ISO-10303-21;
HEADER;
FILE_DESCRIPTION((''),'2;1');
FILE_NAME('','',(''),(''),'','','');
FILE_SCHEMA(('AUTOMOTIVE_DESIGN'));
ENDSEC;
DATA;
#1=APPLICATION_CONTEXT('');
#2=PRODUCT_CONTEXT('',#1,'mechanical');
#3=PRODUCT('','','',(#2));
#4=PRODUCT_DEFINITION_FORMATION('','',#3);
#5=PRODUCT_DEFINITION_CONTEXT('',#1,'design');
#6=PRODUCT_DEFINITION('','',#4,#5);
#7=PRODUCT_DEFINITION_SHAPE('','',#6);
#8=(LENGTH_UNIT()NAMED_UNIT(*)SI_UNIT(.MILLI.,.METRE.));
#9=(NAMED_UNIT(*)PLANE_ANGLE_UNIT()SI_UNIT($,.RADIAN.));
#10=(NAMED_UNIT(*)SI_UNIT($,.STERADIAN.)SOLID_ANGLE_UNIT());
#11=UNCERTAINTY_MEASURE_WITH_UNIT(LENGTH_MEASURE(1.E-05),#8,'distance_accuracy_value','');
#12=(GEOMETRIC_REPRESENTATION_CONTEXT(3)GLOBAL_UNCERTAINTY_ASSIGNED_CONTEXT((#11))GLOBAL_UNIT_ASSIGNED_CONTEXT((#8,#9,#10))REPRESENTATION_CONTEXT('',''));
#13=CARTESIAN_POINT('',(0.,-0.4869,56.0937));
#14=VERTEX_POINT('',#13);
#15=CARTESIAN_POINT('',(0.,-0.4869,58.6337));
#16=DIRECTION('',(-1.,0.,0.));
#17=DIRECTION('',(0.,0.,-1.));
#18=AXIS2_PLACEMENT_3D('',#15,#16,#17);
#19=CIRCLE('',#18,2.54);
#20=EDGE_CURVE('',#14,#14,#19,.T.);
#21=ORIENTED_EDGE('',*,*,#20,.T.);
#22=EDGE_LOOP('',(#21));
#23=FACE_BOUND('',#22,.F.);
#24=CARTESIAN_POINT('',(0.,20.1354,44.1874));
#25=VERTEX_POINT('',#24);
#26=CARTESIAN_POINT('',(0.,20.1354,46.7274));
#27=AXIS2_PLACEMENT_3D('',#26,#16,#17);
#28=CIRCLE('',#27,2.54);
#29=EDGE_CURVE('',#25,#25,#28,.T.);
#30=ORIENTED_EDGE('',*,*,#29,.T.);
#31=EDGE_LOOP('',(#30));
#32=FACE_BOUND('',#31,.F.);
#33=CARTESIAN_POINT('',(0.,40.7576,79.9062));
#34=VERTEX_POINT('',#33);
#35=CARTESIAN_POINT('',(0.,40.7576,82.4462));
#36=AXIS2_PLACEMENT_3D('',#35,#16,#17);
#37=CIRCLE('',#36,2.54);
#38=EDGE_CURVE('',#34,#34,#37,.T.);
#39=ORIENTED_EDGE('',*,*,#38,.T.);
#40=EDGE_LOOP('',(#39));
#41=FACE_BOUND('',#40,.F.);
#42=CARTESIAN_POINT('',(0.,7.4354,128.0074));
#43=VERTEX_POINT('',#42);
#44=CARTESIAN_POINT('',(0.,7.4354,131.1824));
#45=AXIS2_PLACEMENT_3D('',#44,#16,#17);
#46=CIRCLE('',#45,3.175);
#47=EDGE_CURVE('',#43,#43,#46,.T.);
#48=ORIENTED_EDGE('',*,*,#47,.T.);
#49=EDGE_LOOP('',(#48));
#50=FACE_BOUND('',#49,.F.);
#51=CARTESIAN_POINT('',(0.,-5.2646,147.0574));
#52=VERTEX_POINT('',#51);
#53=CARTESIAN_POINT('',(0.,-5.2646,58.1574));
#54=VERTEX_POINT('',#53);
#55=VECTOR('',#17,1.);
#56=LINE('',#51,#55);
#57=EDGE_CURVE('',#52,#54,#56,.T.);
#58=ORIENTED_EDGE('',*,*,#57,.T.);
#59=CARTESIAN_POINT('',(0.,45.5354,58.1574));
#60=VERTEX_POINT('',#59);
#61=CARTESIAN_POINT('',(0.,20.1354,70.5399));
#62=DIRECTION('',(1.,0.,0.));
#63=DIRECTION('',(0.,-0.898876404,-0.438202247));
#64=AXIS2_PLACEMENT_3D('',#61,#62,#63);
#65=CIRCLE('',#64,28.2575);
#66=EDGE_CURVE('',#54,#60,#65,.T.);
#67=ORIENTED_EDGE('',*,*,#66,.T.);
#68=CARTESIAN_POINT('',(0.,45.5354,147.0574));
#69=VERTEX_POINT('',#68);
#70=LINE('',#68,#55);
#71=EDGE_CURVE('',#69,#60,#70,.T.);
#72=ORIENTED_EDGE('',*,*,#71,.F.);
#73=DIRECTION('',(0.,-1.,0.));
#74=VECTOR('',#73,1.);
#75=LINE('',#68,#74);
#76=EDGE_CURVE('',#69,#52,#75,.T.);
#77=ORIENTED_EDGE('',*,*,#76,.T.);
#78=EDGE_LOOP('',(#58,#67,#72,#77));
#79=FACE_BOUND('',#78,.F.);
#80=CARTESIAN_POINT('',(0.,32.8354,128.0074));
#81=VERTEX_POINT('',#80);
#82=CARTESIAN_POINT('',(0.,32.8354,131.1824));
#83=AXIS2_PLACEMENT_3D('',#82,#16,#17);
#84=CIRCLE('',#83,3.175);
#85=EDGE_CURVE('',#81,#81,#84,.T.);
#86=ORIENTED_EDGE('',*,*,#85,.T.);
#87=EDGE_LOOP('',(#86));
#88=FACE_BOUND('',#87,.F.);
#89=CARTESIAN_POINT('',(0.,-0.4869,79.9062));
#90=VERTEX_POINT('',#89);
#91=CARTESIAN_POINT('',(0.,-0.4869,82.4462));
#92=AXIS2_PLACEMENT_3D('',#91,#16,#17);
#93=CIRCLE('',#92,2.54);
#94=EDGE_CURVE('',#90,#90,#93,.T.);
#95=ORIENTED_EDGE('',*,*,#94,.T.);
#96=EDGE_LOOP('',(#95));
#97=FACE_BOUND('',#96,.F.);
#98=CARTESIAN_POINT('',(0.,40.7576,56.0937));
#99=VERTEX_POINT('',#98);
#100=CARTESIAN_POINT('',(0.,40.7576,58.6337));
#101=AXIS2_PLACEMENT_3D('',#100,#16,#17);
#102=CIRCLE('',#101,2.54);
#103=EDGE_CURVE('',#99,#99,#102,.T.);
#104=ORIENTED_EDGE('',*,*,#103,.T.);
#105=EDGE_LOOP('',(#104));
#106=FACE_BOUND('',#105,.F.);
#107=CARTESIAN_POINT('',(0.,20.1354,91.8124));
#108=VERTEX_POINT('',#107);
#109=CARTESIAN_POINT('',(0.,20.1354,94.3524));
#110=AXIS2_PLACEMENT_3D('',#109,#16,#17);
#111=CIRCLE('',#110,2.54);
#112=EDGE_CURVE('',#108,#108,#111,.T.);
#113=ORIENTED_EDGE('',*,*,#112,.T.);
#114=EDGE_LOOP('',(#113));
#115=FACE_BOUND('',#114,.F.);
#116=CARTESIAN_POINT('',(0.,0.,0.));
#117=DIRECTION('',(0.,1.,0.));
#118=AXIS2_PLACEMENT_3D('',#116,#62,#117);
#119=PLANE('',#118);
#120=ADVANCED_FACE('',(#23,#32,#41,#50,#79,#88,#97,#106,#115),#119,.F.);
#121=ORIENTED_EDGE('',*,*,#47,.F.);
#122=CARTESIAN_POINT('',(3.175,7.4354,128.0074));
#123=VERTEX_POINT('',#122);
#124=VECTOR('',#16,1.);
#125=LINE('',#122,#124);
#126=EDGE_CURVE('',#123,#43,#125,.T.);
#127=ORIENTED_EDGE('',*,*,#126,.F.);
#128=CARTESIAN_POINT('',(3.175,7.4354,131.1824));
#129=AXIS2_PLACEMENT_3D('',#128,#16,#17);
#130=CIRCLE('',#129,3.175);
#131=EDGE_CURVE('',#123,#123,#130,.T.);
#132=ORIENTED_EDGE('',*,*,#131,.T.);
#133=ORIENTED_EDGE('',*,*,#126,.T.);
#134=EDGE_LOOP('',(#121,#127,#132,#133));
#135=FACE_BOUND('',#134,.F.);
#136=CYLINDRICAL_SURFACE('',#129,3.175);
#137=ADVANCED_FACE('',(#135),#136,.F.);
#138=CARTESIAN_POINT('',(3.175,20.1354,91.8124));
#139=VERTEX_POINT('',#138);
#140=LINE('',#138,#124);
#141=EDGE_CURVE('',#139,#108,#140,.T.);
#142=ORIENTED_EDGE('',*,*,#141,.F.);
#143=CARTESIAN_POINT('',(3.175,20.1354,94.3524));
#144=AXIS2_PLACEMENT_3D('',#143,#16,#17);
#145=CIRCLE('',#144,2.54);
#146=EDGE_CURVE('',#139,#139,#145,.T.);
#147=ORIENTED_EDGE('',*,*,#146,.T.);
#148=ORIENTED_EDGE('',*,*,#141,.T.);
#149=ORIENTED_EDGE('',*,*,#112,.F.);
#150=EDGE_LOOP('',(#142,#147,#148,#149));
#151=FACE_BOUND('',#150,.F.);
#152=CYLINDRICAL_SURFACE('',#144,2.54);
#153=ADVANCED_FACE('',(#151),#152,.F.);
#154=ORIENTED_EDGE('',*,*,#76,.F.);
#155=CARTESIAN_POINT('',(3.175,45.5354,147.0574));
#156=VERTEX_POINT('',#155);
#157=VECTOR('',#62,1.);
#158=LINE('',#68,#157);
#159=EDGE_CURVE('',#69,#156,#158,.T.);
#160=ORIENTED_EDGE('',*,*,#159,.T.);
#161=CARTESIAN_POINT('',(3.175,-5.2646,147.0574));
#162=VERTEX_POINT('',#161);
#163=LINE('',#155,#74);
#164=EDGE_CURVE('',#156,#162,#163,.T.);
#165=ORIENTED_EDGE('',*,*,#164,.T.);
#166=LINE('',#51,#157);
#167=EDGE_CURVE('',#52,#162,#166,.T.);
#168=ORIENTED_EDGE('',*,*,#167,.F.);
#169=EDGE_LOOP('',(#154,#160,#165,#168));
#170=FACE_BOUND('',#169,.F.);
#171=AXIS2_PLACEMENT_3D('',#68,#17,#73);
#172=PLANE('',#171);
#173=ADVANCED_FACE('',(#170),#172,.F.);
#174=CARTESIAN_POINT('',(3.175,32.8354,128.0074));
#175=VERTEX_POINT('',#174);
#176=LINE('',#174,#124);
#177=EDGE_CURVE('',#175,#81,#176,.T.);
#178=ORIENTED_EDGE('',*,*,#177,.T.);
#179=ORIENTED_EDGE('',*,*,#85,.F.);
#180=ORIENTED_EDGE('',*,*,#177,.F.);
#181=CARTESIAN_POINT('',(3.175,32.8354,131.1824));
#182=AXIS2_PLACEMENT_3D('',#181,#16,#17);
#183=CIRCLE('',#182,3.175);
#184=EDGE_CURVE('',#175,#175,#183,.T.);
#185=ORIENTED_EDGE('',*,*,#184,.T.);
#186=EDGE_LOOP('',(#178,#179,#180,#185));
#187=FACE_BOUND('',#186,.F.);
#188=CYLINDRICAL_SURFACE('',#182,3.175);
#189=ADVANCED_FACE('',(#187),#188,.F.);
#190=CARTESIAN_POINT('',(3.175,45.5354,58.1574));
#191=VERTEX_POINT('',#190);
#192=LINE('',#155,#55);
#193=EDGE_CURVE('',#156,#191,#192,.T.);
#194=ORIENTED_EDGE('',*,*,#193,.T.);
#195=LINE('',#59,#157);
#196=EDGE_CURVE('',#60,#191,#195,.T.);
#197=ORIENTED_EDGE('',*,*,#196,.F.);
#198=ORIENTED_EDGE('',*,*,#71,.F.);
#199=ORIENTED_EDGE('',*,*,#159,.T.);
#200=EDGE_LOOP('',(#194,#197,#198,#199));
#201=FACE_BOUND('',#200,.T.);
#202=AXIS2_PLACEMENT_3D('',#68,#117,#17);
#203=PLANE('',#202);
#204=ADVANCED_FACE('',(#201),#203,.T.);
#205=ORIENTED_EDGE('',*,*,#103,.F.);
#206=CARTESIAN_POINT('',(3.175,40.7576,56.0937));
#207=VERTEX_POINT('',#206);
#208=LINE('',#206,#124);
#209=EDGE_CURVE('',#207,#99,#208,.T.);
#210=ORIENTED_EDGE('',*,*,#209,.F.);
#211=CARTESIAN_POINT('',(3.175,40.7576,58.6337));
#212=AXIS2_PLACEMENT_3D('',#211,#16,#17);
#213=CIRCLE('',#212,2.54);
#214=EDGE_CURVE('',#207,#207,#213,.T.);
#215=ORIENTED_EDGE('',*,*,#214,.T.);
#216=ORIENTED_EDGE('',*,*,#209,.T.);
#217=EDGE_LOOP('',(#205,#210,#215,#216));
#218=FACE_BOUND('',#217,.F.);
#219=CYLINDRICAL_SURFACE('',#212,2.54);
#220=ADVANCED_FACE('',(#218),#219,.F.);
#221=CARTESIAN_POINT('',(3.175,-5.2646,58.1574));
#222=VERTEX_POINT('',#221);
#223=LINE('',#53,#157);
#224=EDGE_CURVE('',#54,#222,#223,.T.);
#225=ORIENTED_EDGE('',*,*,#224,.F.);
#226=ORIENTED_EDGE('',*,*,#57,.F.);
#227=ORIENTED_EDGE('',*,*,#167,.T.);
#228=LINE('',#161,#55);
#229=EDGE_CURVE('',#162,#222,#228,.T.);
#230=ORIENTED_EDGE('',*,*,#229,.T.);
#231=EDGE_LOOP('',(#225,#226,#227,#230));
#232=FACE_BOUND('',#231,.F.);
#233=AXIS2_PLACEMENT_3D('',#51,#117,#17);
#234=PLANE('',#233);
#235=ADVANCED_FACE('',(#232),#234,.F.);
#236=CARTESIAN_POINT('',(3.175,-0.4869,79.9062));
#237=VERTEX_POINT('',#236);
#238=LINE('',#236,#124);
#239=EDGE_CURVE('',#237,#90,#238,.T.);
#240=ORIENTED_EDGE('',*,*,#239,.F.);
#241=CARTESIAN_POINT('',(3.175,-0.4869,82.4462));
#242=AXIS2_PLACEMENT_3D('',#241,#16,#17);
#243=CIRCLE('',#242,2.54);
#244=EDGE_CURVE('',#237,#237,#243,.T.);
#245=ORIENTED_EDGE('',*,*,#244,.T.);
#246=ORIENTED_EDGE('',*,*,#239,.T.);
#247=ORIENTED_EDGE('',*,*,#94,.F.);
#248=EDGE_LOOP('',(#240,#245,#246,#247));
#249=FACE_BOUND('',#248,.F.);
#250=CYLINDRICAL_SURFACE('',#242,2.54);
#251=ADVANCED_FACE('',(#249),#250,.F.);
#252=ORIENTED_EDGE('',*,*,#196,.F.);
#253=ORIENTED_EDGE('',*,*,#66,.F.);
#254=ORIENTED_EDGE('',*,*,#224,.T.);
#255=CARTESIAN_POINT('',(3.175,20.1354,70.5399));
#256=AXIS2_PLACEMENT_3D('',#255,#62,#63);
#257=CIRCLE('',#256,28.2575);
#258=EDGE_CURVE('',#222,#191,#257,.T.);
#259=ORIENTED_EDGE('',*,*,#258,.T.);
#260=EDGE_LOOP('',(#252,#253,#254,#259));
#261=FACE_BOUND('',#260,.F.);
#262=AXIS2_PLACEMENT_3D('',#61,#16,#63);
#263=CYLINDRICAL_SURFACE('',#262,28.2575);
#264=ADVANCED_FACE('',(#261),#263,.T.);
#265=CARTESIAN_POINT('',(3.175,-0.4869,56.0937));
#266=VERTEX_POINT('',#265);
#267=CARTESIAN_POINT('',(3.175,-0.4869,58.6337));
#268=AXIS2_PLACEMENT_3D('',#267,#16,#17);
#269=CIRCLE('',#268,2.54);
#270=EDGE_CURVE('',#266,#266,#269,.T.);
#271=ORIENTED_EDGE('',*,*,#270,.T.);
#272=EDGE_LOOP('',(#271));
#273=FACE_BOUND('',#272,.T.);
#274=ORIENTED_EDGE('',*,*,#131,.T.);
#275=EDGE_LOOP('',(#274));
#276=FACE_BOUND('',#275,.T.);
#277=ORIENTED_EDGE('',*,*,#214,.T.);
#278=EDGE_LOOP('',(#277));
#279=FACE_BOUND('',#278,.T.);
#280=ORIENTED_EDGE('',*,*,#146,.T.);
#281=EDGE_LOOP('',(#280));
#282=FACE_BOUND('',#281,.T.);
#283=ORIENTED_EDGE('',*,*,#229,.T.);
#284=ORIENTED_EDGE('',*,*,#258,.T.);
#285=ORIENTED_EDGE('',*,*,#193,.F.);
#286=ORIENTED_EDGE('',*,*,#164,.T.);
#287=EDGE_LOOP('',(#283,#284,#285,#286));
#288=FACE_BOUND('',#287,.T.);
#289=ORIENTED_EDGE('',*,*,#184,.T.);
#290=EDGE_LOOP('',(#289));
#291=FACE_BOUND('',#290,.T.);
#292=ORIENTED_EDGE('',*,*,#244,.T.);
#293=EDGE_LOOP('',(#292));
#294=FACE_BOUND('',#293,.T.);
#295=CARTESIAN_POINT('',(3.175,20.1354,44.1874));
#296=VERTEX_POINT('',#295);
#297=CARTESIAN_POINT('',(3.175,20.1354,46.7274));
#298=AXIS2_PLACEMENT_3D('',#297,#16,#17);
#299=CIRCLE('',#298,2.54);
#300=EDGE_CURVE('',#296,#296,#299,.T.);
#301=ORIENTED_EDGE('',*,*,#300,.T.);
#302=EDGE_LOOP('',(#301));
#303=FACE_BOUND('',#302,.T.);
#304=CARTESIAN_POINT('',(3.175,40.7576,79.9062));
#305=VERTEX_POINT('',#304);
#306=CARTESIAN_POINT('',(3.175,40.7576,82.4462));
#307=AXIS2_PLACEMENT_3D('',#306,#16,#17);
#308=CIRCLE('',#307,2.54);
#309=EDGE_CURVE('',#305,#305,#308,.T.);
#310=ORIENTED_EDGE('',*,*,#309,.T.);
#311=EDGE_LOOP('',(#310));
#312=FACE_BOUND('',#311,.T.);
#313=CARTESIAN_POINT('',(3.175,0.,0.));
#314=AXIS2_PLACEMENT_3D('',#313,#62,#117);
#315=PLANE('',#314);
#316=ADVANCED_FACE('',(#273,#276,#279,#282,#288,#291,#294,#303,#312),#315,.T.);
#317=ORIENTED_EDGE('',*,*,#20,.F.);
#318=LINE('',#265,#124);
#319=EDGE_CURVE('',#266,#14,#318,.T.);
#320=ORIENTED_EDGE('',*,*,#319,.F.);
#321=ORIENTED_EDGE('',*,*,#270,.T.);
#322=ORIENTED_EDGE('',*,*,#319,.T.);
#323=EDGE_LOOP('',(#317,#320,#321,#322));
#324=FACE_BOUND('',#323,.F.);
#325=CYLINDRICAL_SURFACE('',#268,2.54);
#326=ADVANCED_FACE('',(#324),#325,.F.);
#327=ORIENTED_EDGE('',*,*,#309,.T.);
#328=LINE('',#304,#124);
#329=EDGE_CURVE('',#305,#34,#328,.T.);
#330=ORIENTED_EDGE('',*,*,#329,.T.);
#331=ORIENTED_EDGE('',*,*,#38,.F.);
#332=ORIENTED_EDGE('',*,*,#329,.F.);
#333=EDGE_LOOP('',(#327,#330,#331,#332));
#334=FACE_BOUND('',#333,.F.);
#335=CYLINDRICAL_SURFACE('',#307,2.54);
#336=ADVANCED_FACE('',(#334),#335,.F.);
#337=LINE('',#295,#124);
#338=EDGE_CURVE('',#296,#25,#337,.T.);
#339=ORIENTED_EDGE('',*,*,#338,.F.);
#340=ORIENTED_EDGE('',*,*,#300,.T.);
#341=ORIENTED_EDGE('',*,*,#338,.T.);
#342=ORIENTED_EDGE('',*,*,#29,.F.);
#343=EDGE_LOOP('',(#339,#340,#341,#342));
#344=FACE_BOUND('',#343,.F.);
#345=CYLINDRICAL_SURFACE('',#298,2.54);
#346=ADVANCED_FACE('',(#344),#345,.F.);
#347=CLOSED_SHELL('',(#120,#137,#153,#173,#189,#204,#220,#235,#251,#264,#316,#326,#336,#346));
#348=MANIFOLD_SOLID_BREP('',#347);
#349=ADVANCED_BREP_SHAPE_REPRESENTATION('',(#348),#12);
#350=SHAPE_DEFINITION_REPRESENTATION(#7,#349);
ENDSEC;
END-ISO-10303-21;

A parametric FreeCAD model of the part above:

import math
import FreeCAD as App
import Part
import Sketcher

V = App.Vector
Q = App.Units.Quantity

doc = App.newDocument("Part")
body = doc.addObject("PartDesign::Body", "Body")

# Sketch on YZ plane
sketch1 = body.newObject("Sketcher::SketchObject", "Sketch")
sketch1.AttachmentSupport = (doc.getObject("YZ_Plane"), [""])
sketch1.MapMode = "FlatFace"
sketch1.addGeometry(Part.LineSegment(V(46, 58, 0), V(46, 147, 0)), False)
sketch1.addGeometry(Part.LineSegment(V(46, 147, 0), V(-5, 147, 0)), False)
sketch1.addGeometry(Part.LineSegment(V(-5, 147, 0), V(-5, 58, 0)), False)
sketch1.addGeometry(Part.ArcOfCircle(Part.Circle(V(20, 71, 0), V(0, 0, 1), 28), math.radians(-154), math.radians(-26)), False)
sketch1.addConstraint(Sketcher.Constraint("Coincident", 0, 2, 1, 1))
sketch1.addConstraint(Sketcher.Constraint("Coincident", 1, 2, 2, 1))
sketch1.addConstraint(Sketcher.Constraint("Coincident", 2, 2, 3, 1))
sketch1.addConstraint(Sketcher.Constraint("Coincident", 3, 2, 0, 1))
sketch1.addConstraint(Sketcher.Constraint("Vertical", 0))
sketch1.addConstraint(Sketcher.Constraint("Horizontal", 1))
sketch1.addConstraint(Sketcher.Constraint("Vertical", 2))
sketch1.addConstraint(Sketcher.Constraint("Horizontal", 2, 2, 3, 2))
sketch1.addConstraint(Sketcher.Constraint("DistanceX", 1, 2, 1, 1, Q("2 in")))
sketch1.addConstraint(Sketcher.Constraint("DistanceY", 0, 1, 0, 2, Q("3.5 in")))
sketch1.addConstraint(Sketcher.Constraint("Radius", 3, Q("1.1125 in")))
sketch1.addConstraint(Sketcher.Constraint("DistanceX", -1, 1, 3, 3, Q("20.1354 mm")))
sketch1.addConstraint(Sketcher.Constraint("DistanceY", -1, 1, 3, 3, Q("70.54 mm")))
pad1 = body.newObject("PartDesign::Pad", "Pad")
pad1.Profile = sketch1
pad1.Length = Q("0.125 in")

# Sketch on YZ plane
sketch2 = body.newObject("Sketcher::SketchObject", "Sketch001")
sketch2.AttachmentSupport = (doc.getObject("YZ_Plane"), [""])
sketch2.MapMode = "FlatFace"
sketch2.AttachmentOffset = App.Placement(V(0, 0, 0.125 * 25.4), App.Rotation())
sketch2.addGeometry(Part.Circle(V(40.8, 82.4, 0), V(0, 0, 1), 2.5), False)
sketch2.addGeometry(Part.Circle(V(20.1, 94.4, 0), V(0, 0, 1), 2.5), False)
sketch2.addGeometry(Part.Circle(V(40.8, 58.6, 0), V(0, 0, 1), 2.5), False)
sketch2.addGeometry(Part.Circle(V(20.1, 46.7, 0), V(0, 0, 1), 2.5), False)
sketch2.addGeometry(Part.Circle(V(-0.5, 58.6, 0), V(0, 0, 1), 2.5), False)
sketch2.addGeometry(Part.Circle(V(-0.5, 82.4, 0), V(0, 0, 1), 2.5), False)
sketch2.addConstraint(Sketcher.Constraint("Equal", 0, 1))
sketch2.addConstraint(Sketcher.Constraint("Equal", 1, 2))
sketch2.addConstraint(Sketcher.Constraint("Equal", 2, 3))
sketch2.addConstraint(Sketcher.Constraint("Equal", 3, 4))
sketch2.addConstraint(Sketcher.Constraint("Equal", 4, 5))
sketch2.addConstraint(Sketcher.Constraint("Horizontal", 2, 3, 4, 3))
sketch2.addConstraint(Sketcher.Constraint("Horizontal", 0, 3, 5, 3))
sketch2.addConstraint(Sketcher.Constraint("Vertical", 0, 3, 2, 3))
sketch2.addConstraint(Sketcher.Constraint("Vertical", 1, 3, 3, 3))
sketch2.addConstraint(Sketcher.Constraint("Vertical", 4, 3, 5, 3))
sketch2.addConstraint(Sketcher.Constraint("Diameter", 0, Q("0.2 in")))
sketch2.addConstraint(Sketcher.Constraint("DistanceY", 0, 3, 1, 3, Q("0.468748 in")))
sketch2.addConstraint(Sketcher.Constraint("DistanceY", 2, 3, 0, 3, Q("0.9375 in")))
sketch2.addConstraint(Sketcher.Constraint("DistanceY", 3, 3, 2, 3, Q("0.468752 in")))
sketch2.addConstraint(Sketcher.Constraint("DistanceX", 1, 3, 0, 3, Q("0.8119 in")))
sketch2.addConstraint(Sketcher.Constraint("DistanceX", 4, 3, 3, 3, Q("0.8119 in")))
sketch2.addConstraint(Sketcher.Constraint("DistanceX", -1, 1, 0, 3, Q("40.7576 mm")))
sketch2.addConstraint(Sketcher.Constraint("DistanceY", -1, 1, 0, 3, Q("82.4462 mm")))
doc.recompute()
hole = body.newObject("PartDesign::Hole", "Hole")
hole.Profile = sketch2
hole.ThreadType = "None"
hole.Diameter = Q("0.2 in")
hole.DepthType = "ThroughAll"

# Sketch on YZ plane
sketch3 = body.newObject("Sketcher::SketchObject", "Sketch002")
sketch3.AttachmentSupport = (doc.getObject("YZ_Plane"), [""])
sketch3.MapMode = "FlatFace"
sketch3.AttachmentOffset = App.Placement(V(0, 0, 0.125 * 25.4), App.Rotation())
sketch3.addGeometry(Part.Circle(V(32.8, 131.2, 0), V(0, 0, 1), 3.2), False)
sketch3.addGeometry(Part.Circle(V(7.4, 131.2, 0), V(0, 0, 1), 3.2), False)
sketch3.addConstraint(Sketcher.Constraint("Equal", 0, 1))
sketch3.addConstraint(Sketcher.Constraint("Horizontal", 0, 3, 1, 3))
sketch3.addConstraint(Sketcher.Constraint("Diameter", 0, Q("0.25 in")))
sketch3.addConstraint(Sketcher.Constraint("DistanceX", 1, 3, 0, 3, Q("1 in")))
sketch3.addConstraint(Sketcher.Constraint("DistanceX", -1, 1, 0, 3, Q("32.8354 mm")))
sketch3.addConstraint(Sketcher.Constraint("DistanceY", -1, 1, 0, 3, Q("131.1824 mm")))
doc.recompute()
hole2 = body.newObject("PartDesign::Hole", "Hole001")
hole2.Profile = sketch3
hole2.ThreadType = "None"
hole2.Diameter = Q("0.25 in")
hole2.DepthType = "ThroughAll"

doc.recompute()
